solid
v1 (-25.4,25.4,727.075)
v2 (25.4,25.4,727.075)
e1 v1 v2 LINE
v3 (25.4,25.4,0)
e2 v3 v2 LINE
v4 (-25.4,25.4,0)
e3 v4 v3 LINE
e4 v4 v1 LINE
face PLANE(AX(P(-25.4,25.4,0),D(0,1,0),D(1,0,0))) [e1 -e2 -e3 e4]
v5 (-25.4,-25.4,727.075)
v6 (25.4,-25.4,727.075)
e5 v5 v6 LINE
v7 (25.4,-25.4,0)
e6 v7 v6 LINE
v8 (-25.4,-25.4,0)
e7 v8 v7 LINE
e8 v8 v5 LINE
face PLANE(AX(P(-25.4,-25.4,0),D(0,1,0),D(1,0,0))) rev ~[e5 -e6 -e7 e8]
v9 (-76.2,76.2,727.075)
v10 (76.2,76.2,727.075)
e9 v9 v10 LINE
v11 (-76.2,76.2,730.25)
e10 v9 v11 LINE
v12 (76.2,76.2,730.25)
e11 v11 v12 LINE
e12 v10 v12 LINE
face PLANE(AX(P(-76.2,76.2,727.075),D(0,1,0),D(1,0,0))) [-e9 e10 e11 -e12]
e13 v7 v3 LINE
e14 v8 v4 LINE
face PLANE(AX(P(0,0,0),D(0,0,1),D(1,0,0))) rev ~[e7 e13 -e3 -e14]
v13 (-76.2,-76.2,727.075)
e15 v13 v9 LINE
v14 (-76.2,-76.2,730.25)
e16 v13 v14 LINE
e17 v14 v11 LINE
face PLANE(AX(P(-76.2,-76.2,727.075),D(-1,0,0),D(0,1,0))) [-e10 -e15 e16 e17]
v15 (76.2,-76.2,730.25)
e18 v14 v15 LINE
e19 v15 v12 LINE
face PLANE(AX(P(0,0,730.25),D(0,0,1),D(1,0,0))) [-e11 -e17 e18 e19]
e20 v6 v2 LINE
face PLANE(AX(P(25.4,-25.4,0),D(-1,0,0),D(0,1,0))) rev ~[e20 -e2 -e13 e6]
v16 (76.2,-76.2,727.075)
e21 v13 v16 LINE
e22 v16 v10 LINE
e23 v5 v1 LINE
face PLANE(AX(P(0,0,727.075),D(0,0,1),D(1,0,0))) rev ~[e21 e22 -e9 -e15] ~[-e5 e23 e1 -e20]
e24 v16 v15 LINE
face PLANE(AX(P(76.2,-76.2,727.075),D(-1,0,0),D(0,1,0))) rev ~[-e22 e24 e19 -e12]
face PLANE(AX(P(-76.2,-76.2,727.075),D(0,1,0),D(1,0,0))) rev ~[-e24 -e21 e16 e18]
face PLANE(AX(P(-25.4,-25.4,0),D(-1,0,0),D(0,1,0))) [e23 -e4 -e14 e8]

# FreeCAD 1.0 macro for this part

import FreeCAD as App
import Part
import Sketcher

V = App.Vector
Q = App.Units.Quantity

doc = App.newDocument("Part")
body = doc.addObject("PartDesign::Body", "Body")

# Sketch on XY plane
sketch1 = doc.addObject("Sketcher::SketchObject", "Sketch")
body.addObject(sketch1)
sketch1.AttachmentSupport = (doc.XY_Plane, [""])
sketch1.MapMode = "FlatFace"
sketch1.addGeometry([
    Part.LineSegment(V(-25.4, 25.4, 0), V(-25.4, -25.4, 0)),
    Part.LineSegment(V(-25.4, -25.4, 0), V(25.4, -25.4, 0)),
    Part.LineSegment(V(25.4, -25.4, 0), V(25.4, 25.4, 0)),
    Part.LineSegment(V(25.4, 25.4, 0), V(-25.4, 25.4, 0)),
], False)
sketch1.addConstraint([
    Sketcher.Constraint("Coincident", 0, 2, 1, 1),
    Sketcher.Constraint("Coincident", 1, 2, 2, 1),
    Sketcher.Constraint("Coincident", 2, 2, 3, 1),
    Sketcher.Constraint("Coincident", 3, 2, 0, 1),
    Sketcher.Constraint("Vertical", 0),
    Sketcher.Constraint("Horizontal", 1),
    Sketcher.Constraint("Vertical", 2),
    Sketcher.Constraint("Horizontal", 3),
    Sketcher.Constraint("Symmetric", 0, 2, 2, 2, -1, 1),
    Sketcher.Constraint("Equal", 3, 0),
    Sketcher.Constraint("DistanceX", 1, 1, 1, 2, Q("2 in")),
])
pad1 = doc.addObject("PartDesign::Pad", "Pad")
body.addObject(pad1)
pad1.Profile = sketch1
pad1.Length = Q("28.625 in")

# Sketch on XY plane
sketch2 = doc.addObject("Sketcher::SketchObject", "Sketch001")
body.addObject(sketch2)
sketch2.AttachmentSupport = (doc.XY_Plane, [""])
sketch2.MapMode = "FlatFace"
sketch2.AttachmentOffset = App.Placement(V(0, 0, 28.625 * 25.4), App.Rotation())
sketch2.addGeometry([
    Part.LineSegment(V(-76.2, 76.2, 0), V(-76.2, -76.2, 0)),
    Part.LineSegment(V(-76.2, -76.2, 0), V(76.2, -76.2, 0)),
    Part.LineSegment(V(76.2, -76.2, 0), V(76.2, 76.2, 0)),
    Part.LineSegment(V(76.2, 76.2, 0), V(-76.2, 76.2, 0)),
], False)
sketch2.addConstraint([
    Sketcher.Constraint("Coincident", 0, 2, 1, 1),
    Sketcher.Constraint("Coincident", 1, 2, 2, 1),
    Sketcher.Constraint("Coincident", 2, 2, 3, 1),
    Sketcher.Constraint("Coincident", 3, 2, 0, 1),
    Sketcher.Constraint("Vertical", 0),
    Sketcher.Constraint("Horizontal", 1),
    Sketcher.Constraint("Vertical", 2),
    Sketcher.Constraint("Horizontal", 3),
    Sketcher.Constraint("Symmetric", 0, 2, 2, 2, -1, 1),
    Sketcher.Constraint("Equal", 3, 0),
    Sketcher.Constraint("DistanceX", 1, 1, 1, 2, Q("6 in")),
])
pad2 = doc.addObject("PartDesign::Pad", "Pad001")
body.addObject(pad2)
pad2.Profile = sketch2
pad2.Length = Q("0.125 in")

doc.recompute()
